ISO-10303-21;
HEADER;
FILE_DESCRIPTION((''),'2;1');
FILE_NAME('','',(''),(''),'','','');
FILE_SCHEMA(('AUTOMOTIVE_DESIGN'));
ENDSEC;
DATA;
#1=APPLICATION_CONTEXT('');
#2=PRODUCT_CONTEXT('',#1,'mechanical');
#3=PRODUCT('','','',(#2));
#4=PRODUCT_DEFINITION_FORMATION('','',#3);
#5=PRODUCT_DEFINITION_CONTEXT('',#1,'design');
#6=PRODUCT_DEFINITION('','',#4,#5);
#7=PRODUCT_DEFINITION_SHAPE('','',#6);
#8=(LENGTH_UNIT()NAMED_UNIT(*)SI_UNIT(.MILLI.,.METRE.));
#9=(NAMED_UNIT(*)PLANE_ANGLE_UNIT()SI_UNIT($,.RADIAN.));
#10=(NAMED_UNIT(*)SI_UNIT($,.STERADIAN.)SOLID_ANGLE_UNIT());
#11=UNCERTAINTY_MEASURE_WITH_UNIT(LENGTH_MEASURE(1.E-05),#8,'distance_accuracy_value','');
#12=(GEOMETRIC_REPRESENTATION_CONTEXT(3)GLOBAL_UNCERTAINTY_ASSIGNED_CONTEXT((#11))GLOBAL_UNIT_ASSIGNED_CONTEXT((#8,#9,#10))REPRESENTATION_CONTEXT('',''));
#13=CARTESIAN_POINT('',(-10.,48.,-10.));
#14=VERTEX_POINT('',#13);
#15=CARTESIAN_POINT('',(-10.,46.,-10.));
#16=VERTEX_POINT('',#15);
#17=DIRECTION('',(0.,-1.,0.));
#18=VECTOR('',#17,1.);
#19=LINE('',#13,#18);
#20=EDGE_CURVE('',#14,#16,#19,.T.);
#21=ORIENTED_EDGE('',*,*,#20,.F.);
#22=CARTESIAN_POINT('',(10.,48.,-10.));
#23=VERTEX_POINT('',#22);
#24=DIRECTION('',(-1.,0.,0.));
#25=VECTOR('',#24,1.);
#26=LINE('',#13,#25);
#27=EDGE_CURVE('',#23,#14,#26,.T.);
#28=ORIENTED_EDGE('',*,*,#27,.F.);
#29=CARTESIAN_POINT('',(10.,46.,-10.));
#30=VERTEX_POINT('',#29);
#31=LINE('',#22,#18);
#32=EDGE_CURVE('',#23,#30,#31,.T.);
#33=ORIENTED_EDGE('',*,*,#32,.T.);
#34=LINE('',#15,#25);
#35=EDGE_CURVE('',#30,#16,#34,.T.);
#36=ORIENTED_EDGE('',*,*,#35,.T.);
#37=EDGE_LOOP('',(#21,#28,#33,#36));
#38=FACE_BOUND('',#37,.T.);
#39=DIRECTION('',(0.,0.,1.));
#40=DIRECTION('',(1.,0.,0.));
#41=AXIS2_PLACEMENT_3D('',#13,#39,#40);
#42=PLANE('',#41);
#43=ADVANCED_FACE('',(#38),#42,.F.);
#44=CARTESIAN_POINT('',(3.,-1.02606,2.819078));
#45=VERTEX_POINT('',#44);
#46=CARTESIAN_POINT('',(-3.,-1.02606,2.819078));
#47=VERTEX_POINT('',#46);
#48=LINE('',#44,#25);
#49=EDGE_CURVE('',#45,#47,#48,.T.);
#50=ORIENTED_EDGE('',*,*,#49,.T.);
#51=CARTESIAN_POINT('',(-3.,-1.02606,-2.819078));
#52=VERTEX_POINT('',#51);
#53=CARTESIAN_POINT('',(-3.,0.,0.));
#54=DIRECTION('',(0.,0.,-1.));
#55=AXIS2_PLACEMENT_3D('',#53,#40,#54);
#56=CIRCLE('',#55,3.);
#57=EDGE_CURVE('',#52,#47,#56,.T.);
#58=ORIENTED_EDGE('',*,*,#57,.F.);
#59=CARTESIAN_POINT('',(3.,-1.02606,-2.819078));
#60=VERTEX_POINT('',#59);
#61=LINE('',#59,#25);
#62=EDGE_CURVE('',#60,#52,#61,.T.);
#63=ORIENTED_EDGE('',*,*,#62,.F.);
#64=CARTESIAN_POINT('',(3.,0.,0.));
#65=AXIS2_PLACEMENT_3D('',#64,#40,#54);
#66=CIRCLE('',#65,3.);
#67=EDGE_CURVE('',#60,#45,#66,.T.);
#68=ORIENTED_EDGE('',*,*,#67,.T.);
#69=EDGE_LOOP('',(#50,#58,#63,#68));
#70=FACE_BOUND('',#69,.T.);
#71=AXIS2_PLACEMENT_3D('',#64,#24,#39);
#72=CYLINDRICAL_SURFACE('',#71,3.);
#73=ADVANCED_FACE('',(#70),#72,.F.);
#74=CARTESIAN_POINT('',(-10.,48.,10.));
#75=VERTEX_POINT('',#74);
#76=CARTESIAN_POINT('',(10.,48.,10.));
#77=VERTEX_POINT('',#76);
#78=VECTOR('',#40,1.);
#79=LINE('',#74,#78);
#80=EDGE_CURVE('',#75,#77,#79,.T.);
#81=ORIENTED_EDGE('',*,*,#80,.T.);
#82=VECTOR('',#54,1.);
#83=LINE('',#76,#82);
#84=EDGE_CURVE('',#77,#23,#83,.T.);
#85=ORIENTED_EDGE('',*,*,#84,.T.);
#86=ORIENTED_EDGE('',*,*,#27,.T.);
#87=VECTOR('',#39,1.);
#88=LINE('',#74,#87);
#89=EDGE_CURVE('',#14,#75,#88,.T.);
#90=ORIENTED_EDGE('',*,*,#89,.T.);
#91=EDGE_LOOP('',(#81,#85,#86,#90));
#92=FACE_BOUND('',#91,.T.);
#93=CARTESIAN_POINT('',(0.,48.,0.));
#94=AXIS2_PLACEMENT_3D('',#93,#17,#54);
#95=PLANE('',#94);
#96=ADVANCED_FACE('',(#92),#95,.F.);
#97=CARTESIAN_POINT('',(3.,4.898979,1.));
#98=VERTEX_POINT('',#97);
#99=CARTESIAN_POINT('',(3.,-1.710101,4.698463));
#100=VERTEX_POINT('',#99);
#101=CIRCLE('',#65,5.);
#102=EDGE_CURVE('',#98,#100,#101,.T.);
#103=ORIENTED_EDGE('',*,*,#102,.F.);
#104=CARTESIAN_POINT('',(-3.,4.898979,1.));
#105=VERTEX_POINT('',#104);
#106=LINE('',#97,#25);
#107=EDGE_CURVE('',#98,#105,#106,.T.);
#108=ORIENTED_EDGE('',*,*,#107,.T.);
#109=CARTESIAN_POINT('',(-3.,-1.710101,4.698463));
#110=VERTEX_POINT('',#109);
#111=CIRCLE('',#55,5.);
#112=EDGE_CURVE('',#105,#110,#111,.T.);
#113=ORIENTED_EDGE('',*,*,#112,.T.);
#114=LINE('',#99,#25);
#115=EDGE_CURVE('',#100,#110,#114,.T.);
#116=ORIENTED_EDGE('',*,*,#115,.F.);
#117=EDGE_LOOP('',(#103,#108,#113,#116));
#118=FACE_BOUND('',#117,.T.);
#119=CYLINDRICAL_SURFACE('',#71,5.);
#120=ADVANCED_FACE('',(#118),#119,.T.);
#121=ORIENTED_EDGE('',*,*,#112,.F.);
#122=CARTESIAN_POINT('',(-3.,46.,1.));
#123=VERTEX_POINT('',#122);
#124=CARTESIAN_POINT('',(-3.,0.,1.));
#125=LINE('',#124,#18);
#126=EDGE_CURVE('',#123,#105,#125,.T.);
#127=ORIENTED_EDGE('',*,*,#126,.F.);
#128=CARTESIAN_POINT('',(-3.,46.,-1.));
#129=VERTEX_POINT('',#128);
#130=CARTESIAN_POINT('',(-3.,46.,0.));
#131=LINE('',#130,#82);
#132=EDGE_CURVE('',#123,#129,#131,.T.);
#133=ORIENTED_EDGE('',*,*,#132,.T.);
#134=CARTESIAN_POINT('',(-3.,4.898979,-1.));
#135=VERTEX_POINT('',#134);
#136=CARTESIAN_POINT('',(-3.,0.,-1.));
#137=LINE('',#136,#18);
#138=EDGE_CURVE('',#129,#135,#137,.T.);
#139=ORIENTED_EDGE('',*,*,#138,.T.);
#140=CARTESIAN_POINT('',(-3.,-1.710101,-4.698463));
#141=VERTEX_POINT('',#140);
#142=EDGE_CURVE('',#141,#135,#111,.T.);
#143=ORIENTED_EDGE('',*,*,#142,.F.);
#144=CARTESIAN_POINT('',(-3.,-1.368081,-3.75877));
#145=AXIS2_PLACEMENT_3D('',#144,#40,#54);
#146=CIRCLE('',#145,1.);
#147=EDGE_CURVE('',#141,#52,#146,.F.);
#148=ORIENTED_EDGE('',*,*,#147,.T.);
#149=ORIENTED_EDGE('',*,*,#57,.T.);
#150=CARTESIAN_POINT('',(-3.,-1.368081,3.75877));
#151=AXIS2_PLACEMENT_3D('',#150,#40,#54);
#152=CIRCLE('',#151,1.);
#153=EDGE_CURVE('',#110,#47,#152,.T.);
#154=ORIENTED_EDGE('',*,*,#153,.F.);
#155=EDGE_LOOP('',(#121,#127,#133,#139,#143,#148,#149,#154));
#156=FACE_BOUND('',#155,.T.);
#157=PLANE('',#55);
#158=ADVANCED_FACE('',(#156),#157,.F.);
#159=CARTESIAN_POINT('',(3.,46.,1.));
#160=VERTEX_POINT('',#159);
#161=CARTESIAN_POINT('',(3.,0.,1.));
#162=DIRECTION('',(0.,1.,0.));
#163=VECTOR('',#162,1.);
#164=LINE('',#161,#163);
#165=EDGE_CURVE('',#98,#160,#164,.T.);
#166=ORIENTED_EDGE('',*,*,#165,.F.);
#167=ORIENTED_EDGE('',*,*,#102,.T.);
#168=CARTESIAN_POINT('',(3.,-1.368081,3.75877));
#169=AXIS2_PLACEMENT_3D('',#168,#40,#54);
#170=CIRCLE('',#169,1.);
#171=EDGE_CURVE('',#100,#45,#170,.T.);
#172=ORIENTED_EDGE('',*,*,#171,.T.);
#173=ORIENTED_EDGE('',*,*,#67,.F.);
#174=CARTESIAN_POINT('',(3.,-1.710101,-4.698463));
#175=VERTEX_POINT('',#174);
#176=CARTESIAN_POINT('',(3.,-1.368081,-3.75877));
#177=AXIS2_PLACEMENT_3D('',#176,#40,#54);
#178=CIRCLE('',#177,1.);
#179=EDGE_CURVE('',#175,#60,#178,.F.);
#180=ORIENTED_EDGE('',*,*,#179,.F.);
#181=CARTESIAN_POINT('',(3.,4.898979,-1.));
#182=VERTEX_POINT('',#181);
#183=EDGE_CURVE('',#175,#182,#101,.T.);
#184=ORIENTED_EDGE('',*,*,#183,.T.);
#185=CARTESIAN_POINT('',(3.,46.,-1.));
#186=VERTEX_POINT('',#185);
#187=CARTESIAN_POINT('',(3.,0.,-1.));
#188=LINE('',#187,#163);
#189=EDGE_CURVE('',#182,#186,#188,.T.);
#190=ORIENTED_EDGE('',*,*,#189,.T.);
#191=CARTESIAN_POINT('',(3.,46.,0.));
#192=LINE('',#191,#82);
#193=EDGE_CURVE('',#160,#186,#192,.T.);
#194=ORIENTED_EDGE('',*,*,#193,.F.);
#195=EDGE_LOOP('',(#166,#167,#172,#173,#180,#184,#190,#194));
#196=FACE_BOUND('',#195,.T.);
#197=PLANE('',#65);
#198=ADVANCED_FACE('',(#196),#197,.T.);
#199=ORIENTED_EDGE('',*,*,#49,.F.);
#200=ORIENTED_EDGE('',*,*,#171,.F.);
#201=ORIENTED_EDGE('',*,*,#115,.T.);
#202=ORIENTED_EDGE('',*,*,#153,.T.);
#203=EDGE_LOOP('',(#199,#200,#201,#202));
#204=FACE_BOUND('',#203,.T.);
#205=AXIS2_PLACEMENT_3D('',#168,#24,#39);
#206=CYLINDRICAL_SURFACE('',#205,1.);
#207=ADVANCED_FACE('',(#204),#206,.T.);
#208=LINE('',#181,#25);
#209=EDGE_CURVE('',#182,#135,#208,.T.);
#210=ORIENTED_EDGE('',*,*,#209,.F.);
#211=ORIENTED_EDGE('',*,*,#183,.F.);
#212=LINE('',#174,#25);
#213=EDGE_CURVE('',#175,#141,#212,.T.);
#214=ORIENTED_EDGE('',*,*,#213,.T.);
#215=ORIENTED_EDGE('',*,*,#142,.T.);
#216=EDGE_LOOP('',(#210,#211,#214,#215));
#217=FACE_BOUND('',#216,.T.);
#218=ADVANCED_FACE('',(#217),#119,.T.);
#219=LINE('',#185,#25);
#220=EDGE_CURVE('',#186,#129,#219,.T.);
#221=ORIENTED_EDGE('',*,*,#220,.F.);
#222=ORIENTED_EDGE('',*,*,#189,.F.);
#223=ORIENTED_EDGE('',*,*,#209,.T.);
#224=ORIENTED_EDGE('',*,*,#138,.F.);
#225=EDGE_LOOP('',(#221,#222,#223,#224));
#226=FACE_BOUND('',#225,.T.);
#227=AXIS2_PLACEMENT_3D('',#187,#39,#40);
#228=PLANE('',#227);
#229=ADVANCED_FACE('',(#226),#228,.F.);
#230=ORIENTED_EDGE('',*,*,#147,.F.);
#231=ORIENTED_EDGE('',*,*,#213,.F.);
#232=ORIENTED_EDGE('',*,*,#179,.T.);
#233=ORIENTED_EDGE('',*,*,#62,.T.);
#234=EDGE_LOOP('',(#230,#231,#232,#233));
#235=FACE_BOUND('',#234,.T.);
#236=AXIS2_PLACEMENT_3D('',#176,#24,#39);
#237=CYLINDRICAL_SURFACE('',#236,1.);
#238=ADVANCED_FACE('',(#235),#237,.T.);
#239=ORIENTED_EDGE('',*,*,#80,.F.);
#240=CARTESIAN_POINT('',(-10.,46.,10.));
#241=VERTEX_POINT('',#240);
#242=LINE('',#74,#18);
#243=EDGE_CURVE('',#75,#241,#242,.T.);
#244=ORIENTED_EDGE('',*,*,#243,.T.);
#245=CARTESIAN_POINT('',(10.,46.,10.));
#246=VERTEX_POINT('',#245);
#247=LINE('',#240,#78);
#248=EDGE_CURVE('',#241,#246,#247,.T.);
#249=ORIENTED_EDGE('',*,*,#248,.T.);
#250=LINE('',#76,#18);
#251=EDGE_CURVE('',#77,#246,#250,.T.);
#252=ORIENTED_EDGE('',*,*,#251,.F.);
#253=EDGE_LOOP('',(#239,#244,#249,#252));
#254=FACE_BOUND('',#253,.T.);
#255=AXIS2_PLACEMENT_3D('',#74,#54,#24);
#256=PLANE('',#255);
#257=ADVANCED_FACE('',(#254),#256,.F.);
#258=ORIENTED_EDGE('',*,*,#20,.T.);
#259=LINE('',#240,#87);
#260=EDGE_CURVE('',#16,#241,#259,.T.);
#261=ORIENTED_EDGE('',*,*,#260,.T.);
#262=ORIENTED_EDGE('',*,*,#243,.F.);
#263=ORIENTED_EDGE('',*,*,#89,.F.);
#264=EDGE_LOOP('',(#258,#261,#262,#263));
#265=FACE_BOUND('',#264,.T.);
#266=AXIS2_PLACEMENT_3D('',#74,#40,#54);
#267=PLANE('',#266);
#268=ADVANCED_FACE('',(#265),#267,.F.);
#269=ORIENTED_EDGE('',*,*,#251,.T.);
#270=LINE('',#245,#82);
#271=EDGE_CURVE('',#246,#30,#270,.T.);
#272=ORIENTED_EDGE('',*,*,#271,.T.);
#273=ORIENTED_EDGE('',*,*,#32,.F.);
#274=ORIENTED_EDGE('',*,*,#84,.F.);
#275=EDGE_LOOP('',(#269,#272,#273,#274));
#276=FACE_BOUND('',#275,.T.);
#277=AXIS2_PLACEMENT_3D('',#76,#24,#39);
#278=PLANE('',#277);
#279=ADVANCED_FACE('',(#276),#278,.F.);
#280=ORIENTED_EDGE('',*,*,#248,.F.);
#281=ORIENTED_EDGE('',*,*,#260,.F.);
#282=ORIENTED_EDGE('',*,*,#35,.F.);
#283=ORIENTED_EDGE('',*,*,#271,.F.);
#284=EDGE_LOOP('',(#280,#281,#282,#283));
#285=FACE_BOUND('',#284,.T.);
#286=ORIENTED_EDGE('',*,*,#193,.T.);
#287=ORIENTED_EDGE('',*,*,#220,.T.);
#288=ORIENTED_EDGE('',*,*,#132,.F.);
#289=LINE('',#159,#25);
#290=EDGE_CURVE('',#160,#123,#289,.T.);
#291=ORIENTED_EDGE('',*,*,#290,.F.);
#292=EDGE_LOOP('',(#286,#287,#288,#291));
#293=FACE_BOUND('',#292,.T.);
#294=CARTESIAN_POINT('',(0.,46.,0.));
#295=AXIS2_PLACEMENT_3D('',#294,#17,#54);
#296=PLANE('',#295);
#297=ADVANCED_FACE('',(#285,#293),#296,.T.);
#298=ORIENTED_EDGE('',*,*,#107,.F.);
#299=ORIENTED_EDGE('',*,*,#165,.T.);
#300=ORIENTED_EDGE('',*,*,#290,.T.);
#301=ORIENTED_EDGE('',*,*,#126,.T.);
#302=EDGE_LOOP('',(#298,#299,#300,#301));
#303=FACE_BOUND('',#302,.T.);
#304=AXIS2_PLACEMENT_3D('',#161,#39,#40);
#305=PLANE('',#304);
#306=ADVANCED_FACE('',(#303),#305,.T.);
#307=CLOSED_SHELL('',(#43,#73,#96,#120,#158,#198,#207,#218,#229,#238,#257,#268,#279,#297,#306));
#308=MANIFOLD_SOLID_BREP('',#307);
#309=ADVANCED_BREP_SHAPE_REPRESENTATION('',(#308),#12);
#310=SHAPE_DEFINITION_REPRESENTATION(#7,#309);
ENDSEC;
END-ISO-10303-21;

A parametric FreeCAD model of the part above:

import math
import FreeCAD as App
import Part
import Sketcher
from FreeCAD import Vector
Q = App.Units.Quantity


def add_polygon(sketch, points):
    """Adds a closed chain of lines whose ends are joined by coincident constraints."""
    first, n = sketch.GeometryCount, len(points)
    for a, b in zip(points, points[1:] + points[:1]):
        sketch.addGeometry(Part.LineSegment(App.Vector(*a, 0), App.Vector(*b, 0)), False)
    for i in range(n):
        sketch.addConstraint(Sketcher.Constraint("Coincident", first + i, 2, first + (i + 1) % n, 1))

doc = App.newDocument("Part")
body = doc.addObject("PartDesign::Body", "Body")

sketch1 = doc.addObject("Sketcher::SketchObject", "Sketch")
body.addObject(sketch1)
sketch1.AttachmentSupport = (doc.YZ_Plane, [""])
sketch1.MapMode = "FlatFace"
sketch1.addGeometry([
    Part.ArcOfCircle(Part.Circle(Vector(0, 0, 0), Vector(0, 0, 1), 3), math.radians(-90), math.radians(90)),
    Part.ArcOfCircle(Part.Circle(Vector(0, 0, 0), Vector(0, 0, 1), 3), math.radians(-110), math.radians(-90)),
    Part.ArcOfCircle(Part.Circle(Vector(-1.368081, -3.75877, 0), Vector(0, 0, 1), 1), math.radians(70), math.radians(250)),
    Part.ArcOfCircle(Part.Circle(Vector(0, 0, 0), Vector(0, 0, 1), 5), math.radians(-110), math.radians(-90)),
    Part.ArcOfCircle(Part.Circle(Vector(0, 0, 0), Vector(0, 0, 1), 5), math.radians(-90), math.radians(90)),
    Part.ArcOfCircle(Part.Circle(Vector(0, 0, 0), Vector(0, 0, 1), 5), math.radians(90), math.radians(110)),
    Part.ArcOfCircle(Part.Circle(Vector(-1.368081, 3.75877, 0), Vector(0, 0, 1), 1), math.radians(110), math.radians(290)),
    Part.ArcOfCircle(Part.Circle(Vector(0, 0, 0), Vector(0, 0, 1), 3), math.radians(90), math.radians(110)),
], False)
sketch1.addConstraint([
    Sketcher.Constraint("Tangent", 0, 1, 1, 2),
    Sketcher.Constraint("Tangent", 1, 1, 2, 1),
    Sketcher.Constraint("Tangent", 2, 2, 3, 1),
    Sketcher.Constraint("Tangent", 3, 2, 4, 1),
    Sketcher.Constraint("Tangent", 4, 2, 5, 1),
    Sketcher.Constraint("Tangent", 5, 2, 6, 1),
    Sketcher.Constraint("Tangent", 6, 2, 7, 2),
    Sketcher.Constraint("Tangent", 7, 1, 0, 2),
    Sketcher.Constraint("Coincident", 0, 3, -1, 1),
    Sketcher.Constraint("Coincident", 3, 3, -1, 1),
    Sketcher.Constraint("Equal", 0, 1),
    Sketcher.Constraint("Equal", 3, 4),
    Sketcher.Constraint("Equal", 4, 5),
    Sketcher.Constraint("Equal", 2, 6),
    Sketcher.Constraint("PointOnObject", 0, 1, -2),
    Sketcher.Constraint("PointOnObject", 3, 2, -2),
    Sketcher.Constraint("PointOnObject", 4, 2, -2),
    Sketcher.Constraint("PointOnObject", 7, 1, -2),
    Sketcher.Constraint("Vertical", 2, 3, 6, 3),
    Sketcher.Constraint("Radius", 0, Q("3 mm")),
    Sketcher.Constraint("Radius", 2, Q("1 mm")),
    Sketcher.Constraint("DistanceX", 2, 2, -1, 1, Q("1.710101 mm")),
])
pad1 = doc.addObject("PartDesign::Pad", "Pad")
body.addObject(pad1)
pad1.Profile = sketch1
pad1.Type = "TwoLengths"
pad1.Length = 3
pad1.Length2 = 3

sketch2 = doc.addObject("Sketcher::SketchObject", "Sketch001")
body.addObject(sketch2)
sketch2.AttachmentSupport = (doc.YZ_Plane, [""])
sketch2.MapMode = "FlatFace"
add_polygon(sketch2, [(3, 1), (3, -1), (46, -1), (46, 1)])
sketch2.addConstraint([
    Sketcher.Constraint("Vertical", 0),
    Sketcher.Constraint("Horizontal", 1),
    Sketcher.Constraint("Vertical", 2),
    Sketcher.Constraint("Horizontal", 3),
    Sketcher.Constraint("DistanceX", 1, 1, 1, 2, Q("43 mm")),
    Sketcher.Constraint("DistanceY", 0, 2, 0, 1, Q("2 mm")),
    Sketcher.Constraint("DistanceX", -1, 1, 0, 2, Q("3 mm")),
    Sketcher.Constraint("DistanceY", 0, 2, -1, 1, Q("1 mm")),
])
pad2 = doc.addObject("PartDesign::Pad", "Pad001")
body.addObject(pad2)
pad2.Profile = sketch2
pad2.Length = 3

sketch3 = doc.addObject("Sketcher::SketchObject", "Sketch002")
body.addObject(sketch3)
sketch3.AttachmentSupport = (doc.YZ_Plane, [""])
sketch3.MapMode = "FlatFace"
add_polygon(sketch3, [(46, -1), (46, 1), (3, 1), (3, -1)])
sketch3.addConstraint([
    Sketcher.Constraint("Vertical", 0),
    Sketcher.Constraint("Horizontal", 1),
    Sketcher.Constraint("Vertical", 2),
    Sketcher.Constraint("Horizontal", 3),
    Sketcher.Constraint("DistanceX", 1, 2, 1, 1, Q("43 mm")),
    Sketcher.Constraint("DistanceY", 0, 1, 0, 2, Q("2 mm")),
    Sketcher.Constraint("DistanceX", -1, 1, 0, 2, Q("46 mm")),
    Sketcher.Constraint("DistanceY", -1, 1, 0, 2, Q("1 mm")),
])
pad3 = doc.addObject("PartDesign::Pad", "Pad002")
body.addObject(pad3)
pad3.Profile = sketch3
pad3.Length = 3
pad3.Reversed = True

sketch4 = doc.addObject("Sketcher::SketchObject", "Sketch003")
body.addObject(sketch4)
sketch4.AttachmentSupport = (doc.XZ_Plane, [""])
sketch4.MapMode = "FlatFace"
sketch4.AttachmentOffset = App.Placement(Vector(0, 0, -46), App.Rotation())
add_polygon(sketch4, [(-10, -10), (-10, 10), (10, 10), (10, -10)])
sketch4.addConstraint([
    Sketcher.Constraint("Vertical", 0),
    Sketcher.Constraint("Horizontal", 1),
    Sketcher.Constraint("Vertical", 2),
    Sketcher.Constraint("Horizontal", 3),
    Sketcher.Constraint("Symmetric", 0, 2, 2, 2, -1, 1),
    Sketcher.Constraint("Equal", 3, 0),
    Sketcher.Constraint("DistanceX", 1, 1, 1, 2, Q("20 mm")),
])
pad4 = doc.addObject("PartDesign::Pad", "Pad003")
body.addObject(pad4)
pad4.Profile = sketch4
pad4.Length = 2
pad4.Reversed = True

doc.recompute()
